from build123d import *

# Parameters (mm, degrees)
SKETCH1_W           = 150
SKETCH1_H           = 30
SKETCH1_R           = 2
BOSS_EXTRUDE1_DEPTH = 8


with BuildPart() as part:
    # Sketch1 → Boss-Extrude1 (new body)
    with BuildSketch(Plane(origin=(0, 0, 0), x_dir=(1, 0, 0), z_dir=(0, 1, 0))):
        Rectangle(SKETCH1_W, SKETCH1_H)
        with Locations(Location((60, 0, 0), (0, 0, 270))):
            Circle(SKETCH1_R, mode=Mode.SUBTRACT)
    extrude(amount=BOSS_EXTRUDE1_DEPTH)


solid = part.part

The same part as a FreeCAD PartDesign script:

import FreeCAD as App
import Part
import Sketcher
from FreeCAD import Vector
Q = App.Units.Quantity

doc = App.newDocument("Part")
body = doc.addObject("PartDesign::Body", "Body")

sketch1 = body.newObject("Sketcher::SketchObject", "Sketch")
sketch1.AttachmentSupport = (doc.getObject("XZ_Plane"), [""])
sketch1.MapMode = "FlatFace"
sketch1.addGeometry([
    Part.LineSegment(Vector(-75, -15, 0), Vector(-75, 15, 0)),
    Part.LineSegment(Vector(-75, 15, 0), Vector(75, 15, 0)),
    Part.LineSegment(Vector(75, 15, 0), Vector(75, -15, 0)),
    Part.LineSegment(Vector(75, -15, 0), Vector(-75, -15, 0)),
    Part.Circle(Vector(60, 0, 0), Vector(0, 0, 1), 2),
], False)
sketch1.addConstraint([
    Sketcher.Constraint("Coincident", 0, 2, 1, 1),
    Sketcher.Constraint("Coincident", 1, 2, 2, 1),
    Sketcher.Constraint("Coincident", 2, 2, 3, 1),
    Sketcher.Constraint("Coincident", 3, 2, 0, 1),
    Sketcher.Constraint("Vertical", 0),
    Sketcher.Constraint("Horizontal", 1),
    Sketcher.Constraint("Vertical", 2),
    Sketcher.Constraint("Horizontal", 3),
    Sketcher.Constraint("Symmetric", 0, 2, 2, 2, -1, 1),
    Sketcher.Constraint("PointOnObject", 4, 3, -1),
    Sketcher.Constraint("Diameter", 4, Q("4 mm")),
    Sketcher.Constraint("DistanceX", 1, 1, 1, 2, Q("150 mm")),
    Sketcher.Constraint("DistanceY", 0, 1, 0, 2, Q("30 mm")),
    Sketcher.Constraint("DistanceX", -1, 1, 4, 3, Q("60 mm")),
])
pad1 = body.newObject("PartDesign::Pad", "Pad")
pad1.Profile = sketch1
pad1.Length = 8
pad1.Reversed = True

doc.recompute()
